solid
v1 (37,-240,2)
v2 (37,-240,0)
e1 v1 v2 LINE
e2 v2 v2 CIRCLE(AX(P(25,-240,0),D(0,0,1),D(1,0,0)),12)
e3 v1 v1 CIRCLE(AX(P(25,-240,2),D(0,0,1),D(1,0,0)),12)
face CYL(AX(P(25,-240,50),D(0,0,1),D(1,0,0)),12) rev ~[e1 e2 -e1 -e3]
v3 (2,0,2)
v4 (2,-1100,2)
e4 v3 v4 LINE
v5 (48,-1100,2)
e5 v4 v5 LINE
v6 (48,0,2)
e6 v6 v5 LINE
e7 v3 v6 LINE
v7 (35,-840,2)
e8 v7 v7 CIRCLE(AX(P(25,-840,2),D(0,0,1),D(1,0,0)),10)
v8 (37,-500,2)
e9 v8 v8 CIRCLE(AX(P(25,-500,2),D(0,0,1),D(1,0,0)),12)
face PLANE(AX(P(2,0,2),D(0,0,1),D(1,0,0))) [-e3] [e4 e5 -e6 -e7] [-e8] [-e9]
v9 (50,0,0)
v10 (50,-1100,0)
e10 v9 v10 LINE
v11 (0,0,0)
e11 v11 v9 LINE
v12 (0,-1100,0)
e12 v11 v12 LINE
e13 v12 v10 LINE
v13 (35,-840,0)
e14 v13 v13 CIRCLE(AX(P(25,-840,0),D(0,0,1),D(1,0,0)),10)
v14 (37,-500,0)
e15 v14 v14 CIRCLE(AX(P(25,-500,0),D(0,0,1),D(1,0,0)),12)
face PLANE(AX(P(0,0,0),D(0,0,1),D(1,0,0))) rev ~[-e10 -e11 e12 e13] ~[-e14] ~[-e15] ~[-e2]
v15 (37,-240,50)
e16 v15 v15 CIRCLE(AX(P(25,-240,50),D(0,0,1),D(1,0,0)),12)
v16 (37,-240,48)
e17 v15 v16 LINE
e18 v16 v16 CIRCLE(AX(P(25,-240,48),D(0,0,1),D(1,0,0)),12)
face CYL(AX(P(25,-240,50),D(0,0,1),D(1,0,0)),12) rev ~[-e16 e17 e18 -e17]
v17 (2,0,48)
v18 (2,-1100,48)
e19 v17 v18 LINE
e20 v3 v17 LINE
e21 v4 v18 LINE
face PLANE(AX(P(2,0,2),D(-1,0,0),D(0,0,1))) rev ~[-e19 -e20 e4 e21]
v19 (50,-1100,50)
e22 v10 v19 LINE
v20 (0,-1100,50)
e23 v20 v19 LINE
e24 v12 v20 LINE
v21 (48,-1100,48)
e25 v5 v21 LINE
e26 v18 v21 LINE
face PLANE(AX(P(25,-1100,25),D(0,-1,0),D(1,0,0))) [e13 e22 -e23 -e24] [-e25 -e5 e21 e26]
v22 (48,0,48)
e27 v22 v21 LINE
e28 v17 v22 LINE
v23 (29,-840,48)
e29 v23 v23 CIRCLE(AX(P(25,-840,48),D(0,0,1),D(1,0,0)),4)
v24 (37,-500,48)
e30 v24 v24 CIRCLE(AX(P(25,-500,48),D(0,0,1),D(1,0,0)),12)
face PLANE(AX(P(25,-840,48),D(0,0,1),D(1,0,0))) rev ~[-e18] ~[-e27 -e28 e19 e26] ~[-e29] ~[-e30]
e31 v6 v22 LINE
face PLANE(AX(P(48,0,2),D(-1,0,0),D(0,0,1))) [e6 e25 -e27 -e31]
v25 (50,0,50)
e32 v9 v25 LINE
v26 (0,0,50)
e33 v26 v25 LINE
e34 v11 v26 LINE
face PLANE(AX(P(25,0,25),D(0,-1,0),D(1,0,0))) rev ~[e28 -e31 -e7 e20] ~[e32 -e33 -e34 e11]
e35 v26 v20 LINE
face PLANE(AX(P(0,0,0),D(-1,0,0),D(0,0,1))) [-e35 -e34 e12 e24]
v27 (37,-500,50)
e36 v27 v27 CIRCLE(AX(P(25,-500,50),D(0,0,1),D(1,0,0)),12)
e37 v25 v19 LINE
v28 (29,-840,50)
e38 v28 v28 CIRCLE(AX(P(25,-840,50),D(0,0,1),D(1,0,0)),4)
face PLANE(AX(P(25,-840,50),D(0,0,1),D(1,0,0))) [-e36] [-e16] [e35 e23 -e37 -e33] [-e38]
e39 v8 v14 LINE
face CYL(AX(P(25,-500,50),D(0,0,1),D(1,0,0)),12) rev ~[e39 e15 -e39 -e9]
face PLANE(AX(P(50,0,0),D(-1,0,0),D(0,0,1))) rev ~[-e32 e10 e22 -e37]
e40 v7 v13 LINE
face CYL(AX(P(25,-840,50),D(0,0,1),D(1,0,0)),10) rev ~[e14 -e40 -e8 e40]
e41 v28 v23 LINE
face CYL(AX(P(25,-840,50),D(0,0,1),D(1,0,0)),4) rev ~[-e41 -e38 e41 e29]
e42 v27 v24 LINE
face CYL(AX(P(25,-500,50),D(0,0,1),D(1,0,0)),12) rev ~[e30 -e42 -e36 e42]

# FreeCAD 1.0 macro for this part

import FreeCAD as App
import Part
import Sketcher

V = App.Vector

doc = App.newDocument("Part")
body = doc.addObject("PartDesign::Body", "Body")

# Sketch on XZ plane
sketch1 = doc.addObject("Sketcher::SketchObject", "Sketch")
body.addObject(sketch1)
sketch1.AttachmentSupport = (doc.XZ_Plane, [""])
sketch1.MapMode = "FlatFace"
sketch1.addGeometry([
    Part.LineSegment(V(0, 50, 0), V(0, 0, 0)),  # 0
    Part.LineSegment(V(0, 0, 0), V(50, 0, 0)),  # 1
    Part.LineSegment(V(50, 0, 0), V(50, 50, 0)),  # 2
    Part.LineSegment(V(50, 50, 0), V(0, 50, 0)),  # 3
    Part.LineSegment(V(48, 2, 0), V(2, 2, 0)),  # 4
    Part.LineSegment(V(2, 2, 0), V(2, 48, 0)),  # 5
    Part.LineSegment(V(2, 48, 0), V(48, 48, 0)),  # 6
    Part.LineSegment(V(48, 48, 0), V(48, 2, 0)),  # 7
], False)
sketch1.addConstraint([
    Sketcher.Constraint("Coincident", 0, 2, 1, 1),
    Sketcher.Constraint("Coincident", 1, 2, 2, 1),
    Sketcher.Constraint("Coincident", 2, 2, 3, 1),
    Sketcher.Constraint("Coincident", 3, 2, 0, 1),
    Sketcher.Constraint("Coincident", 4, 2, 5, 1),
    Sketcher.Constraint("Coincident", 5, 2, 6, 1),
    Sketcher.Constraint("Coincident", 6, 2, 7, 1),
    Sketcher.Constraint("Coincident", 7, 2, 4, 1),
    Sketcher.Constraint("Vertical", 0),
    Sketcher.Constraint("Horizontal", 1),
    Sketcher.Constraint("Vertical", 2),
    Sketcher.Constraint("Horizontal", 3),
    Sketcher.Constraint("Horizontal", 4),
    Sketcher.Constraint("Vertical", 5),
    Sketcher.Constraint("Horizontal", 6),
    Sketcher.Constraint("Vertical", 7),
    Sketcher.Constraint("Coincident", 0, 2, -1, 1),
    Sketcher.Constraint("Equal", 3, 0),
    Sketcher.Constraint("Equal", 6, 5),
    Sketcher.Constraint("DistanceX", 1, 1, 1, 2, 50.0),
    Sketcher.Constraint("DistanceX", 4, 2, 4, 1, 46.0),
    Sketcher.Constraint("DistanceX", -1, 1, 4, 2, 2.0),
    Sketcher.Constraint("DistanceY", -1, 1, 4, 2, 2.0),
])
pad1 = doc.addObject("PartDesign::Pad", "Pad")
body.addObject(pad1)
pad1.Profile = sketch1
pad1.Length = 1100

# Sketch on XY plane
sketch2 = doc.addObject("Sketcher::SketchObject", "Sketch001")
body.addObject(sketch2)
sketch2.AttachmentSupport = (doc.XY_Plane, [""])
sketch2.MapMode = "FlatFace"
sketch2.AttachmentOffset = App.Placement(V(0, 0, 50), App.Rotation())
sketch2.addGeometry([
    Part.Circle(V(25, -500, 0), V(0, 0, 1), 12),
    Part.Circle(V(25, -240, 0), V(0, 0, 1), 12),
], False)
sketch2.addConstraint([
    Sketcher.Constraint("Equal", 0, 1),
    Sketcher.Constraint("Vertical", 0, 3, 1, 3),
    Sketcher.Constraint("Diameter", 0, 24.0),
    Sketcher.Constraint("DistanceX", -1, 1, 0, 3, 25.0),
    Sketcher.Constraint("DistanceY", 0, 3, -1, 1, 500.0),
    Sketcher.Constraint("DistanceY", 1, 3, -1, 1, 240.0),
])
pocket1 = doc.addObject("PartDesign::Pocket", "Pocket")
body.addObject(pocket1)
pocket1.Profile = sketch2
pocket1.Type = "ThroughAll"

# Sketch on XY plane
sketch3 = doc.addObject("Sketcher::SketchObject", "Sketch002")
body.addObject(sketch3)
sketch3.AttachmentSupport = (doc.XY_Plane, [""])
sketch3.MapMode = "FlatFace"
sketch3.AttachmentOffset = App.Placement(V(0, 0, 50), App.Rotation())
sketch3.addGeometry(Part.Circle(V(25, -840, 0), V(0, 0, 1), 10), False)
sketch3.addConstraint([
    Sketcher.Constraint("Diameter", 0, 20.0),
    Sketcher.Constraint("DistanceX", -1, 1, 0, 3, 25.0),
    Sketcher.Constraint("DistanceY", 0, 3, -1, 1, 840.0),
])
pocket2 = doc.addObject("PartDesign::Pocket", "Pocket001")
body.addObject(pocket2)
pocket2.Profile = sketch3
pocket2.Type = "ThroughAll"

# Sketch on XY plane
sketch4 = doc.addObject("Sketcher::SketchObject", "Sketch003")
body.addObject(sketch4)
sketch4.AttachmentSupport = (doc.XY_Plane, [""])
sketch4.MapMode = "FlatFace"
sketch4.AttachmentOffset = App.Placement(V(0, 0, 50), App.Rotation())
sketch4.addGeometry([
    Part.Circle(V(25, -840, 0), V(0, 0, 1), 10),
    Part.Circle(V(25, -840, 0), V(0, 0, 1), 4),
], False)
sketch4.addConstraint([
    Sketcher.Constraint("Coincident", 1, 3, 0, 3),
    Sketcher.Constraint("Diameter", 0, 20.0),
    Sketcher.Constraint("Diameter", 1, 8.0),
    Sketcher.Constraint("DistanceX", -1, 1, 0, 3, 25.0),
    Sketcher.Constraint("DistanceY", 0, 3, -1, 1, 840.0),
])
pad2 = doc.addObject("PartDesign::Pad", "Pad001")
body.addObject(pad2)
pad2.Profile = sketch4
pad2.Length = 2
pad2.Reversed = True

doc.recompute()
